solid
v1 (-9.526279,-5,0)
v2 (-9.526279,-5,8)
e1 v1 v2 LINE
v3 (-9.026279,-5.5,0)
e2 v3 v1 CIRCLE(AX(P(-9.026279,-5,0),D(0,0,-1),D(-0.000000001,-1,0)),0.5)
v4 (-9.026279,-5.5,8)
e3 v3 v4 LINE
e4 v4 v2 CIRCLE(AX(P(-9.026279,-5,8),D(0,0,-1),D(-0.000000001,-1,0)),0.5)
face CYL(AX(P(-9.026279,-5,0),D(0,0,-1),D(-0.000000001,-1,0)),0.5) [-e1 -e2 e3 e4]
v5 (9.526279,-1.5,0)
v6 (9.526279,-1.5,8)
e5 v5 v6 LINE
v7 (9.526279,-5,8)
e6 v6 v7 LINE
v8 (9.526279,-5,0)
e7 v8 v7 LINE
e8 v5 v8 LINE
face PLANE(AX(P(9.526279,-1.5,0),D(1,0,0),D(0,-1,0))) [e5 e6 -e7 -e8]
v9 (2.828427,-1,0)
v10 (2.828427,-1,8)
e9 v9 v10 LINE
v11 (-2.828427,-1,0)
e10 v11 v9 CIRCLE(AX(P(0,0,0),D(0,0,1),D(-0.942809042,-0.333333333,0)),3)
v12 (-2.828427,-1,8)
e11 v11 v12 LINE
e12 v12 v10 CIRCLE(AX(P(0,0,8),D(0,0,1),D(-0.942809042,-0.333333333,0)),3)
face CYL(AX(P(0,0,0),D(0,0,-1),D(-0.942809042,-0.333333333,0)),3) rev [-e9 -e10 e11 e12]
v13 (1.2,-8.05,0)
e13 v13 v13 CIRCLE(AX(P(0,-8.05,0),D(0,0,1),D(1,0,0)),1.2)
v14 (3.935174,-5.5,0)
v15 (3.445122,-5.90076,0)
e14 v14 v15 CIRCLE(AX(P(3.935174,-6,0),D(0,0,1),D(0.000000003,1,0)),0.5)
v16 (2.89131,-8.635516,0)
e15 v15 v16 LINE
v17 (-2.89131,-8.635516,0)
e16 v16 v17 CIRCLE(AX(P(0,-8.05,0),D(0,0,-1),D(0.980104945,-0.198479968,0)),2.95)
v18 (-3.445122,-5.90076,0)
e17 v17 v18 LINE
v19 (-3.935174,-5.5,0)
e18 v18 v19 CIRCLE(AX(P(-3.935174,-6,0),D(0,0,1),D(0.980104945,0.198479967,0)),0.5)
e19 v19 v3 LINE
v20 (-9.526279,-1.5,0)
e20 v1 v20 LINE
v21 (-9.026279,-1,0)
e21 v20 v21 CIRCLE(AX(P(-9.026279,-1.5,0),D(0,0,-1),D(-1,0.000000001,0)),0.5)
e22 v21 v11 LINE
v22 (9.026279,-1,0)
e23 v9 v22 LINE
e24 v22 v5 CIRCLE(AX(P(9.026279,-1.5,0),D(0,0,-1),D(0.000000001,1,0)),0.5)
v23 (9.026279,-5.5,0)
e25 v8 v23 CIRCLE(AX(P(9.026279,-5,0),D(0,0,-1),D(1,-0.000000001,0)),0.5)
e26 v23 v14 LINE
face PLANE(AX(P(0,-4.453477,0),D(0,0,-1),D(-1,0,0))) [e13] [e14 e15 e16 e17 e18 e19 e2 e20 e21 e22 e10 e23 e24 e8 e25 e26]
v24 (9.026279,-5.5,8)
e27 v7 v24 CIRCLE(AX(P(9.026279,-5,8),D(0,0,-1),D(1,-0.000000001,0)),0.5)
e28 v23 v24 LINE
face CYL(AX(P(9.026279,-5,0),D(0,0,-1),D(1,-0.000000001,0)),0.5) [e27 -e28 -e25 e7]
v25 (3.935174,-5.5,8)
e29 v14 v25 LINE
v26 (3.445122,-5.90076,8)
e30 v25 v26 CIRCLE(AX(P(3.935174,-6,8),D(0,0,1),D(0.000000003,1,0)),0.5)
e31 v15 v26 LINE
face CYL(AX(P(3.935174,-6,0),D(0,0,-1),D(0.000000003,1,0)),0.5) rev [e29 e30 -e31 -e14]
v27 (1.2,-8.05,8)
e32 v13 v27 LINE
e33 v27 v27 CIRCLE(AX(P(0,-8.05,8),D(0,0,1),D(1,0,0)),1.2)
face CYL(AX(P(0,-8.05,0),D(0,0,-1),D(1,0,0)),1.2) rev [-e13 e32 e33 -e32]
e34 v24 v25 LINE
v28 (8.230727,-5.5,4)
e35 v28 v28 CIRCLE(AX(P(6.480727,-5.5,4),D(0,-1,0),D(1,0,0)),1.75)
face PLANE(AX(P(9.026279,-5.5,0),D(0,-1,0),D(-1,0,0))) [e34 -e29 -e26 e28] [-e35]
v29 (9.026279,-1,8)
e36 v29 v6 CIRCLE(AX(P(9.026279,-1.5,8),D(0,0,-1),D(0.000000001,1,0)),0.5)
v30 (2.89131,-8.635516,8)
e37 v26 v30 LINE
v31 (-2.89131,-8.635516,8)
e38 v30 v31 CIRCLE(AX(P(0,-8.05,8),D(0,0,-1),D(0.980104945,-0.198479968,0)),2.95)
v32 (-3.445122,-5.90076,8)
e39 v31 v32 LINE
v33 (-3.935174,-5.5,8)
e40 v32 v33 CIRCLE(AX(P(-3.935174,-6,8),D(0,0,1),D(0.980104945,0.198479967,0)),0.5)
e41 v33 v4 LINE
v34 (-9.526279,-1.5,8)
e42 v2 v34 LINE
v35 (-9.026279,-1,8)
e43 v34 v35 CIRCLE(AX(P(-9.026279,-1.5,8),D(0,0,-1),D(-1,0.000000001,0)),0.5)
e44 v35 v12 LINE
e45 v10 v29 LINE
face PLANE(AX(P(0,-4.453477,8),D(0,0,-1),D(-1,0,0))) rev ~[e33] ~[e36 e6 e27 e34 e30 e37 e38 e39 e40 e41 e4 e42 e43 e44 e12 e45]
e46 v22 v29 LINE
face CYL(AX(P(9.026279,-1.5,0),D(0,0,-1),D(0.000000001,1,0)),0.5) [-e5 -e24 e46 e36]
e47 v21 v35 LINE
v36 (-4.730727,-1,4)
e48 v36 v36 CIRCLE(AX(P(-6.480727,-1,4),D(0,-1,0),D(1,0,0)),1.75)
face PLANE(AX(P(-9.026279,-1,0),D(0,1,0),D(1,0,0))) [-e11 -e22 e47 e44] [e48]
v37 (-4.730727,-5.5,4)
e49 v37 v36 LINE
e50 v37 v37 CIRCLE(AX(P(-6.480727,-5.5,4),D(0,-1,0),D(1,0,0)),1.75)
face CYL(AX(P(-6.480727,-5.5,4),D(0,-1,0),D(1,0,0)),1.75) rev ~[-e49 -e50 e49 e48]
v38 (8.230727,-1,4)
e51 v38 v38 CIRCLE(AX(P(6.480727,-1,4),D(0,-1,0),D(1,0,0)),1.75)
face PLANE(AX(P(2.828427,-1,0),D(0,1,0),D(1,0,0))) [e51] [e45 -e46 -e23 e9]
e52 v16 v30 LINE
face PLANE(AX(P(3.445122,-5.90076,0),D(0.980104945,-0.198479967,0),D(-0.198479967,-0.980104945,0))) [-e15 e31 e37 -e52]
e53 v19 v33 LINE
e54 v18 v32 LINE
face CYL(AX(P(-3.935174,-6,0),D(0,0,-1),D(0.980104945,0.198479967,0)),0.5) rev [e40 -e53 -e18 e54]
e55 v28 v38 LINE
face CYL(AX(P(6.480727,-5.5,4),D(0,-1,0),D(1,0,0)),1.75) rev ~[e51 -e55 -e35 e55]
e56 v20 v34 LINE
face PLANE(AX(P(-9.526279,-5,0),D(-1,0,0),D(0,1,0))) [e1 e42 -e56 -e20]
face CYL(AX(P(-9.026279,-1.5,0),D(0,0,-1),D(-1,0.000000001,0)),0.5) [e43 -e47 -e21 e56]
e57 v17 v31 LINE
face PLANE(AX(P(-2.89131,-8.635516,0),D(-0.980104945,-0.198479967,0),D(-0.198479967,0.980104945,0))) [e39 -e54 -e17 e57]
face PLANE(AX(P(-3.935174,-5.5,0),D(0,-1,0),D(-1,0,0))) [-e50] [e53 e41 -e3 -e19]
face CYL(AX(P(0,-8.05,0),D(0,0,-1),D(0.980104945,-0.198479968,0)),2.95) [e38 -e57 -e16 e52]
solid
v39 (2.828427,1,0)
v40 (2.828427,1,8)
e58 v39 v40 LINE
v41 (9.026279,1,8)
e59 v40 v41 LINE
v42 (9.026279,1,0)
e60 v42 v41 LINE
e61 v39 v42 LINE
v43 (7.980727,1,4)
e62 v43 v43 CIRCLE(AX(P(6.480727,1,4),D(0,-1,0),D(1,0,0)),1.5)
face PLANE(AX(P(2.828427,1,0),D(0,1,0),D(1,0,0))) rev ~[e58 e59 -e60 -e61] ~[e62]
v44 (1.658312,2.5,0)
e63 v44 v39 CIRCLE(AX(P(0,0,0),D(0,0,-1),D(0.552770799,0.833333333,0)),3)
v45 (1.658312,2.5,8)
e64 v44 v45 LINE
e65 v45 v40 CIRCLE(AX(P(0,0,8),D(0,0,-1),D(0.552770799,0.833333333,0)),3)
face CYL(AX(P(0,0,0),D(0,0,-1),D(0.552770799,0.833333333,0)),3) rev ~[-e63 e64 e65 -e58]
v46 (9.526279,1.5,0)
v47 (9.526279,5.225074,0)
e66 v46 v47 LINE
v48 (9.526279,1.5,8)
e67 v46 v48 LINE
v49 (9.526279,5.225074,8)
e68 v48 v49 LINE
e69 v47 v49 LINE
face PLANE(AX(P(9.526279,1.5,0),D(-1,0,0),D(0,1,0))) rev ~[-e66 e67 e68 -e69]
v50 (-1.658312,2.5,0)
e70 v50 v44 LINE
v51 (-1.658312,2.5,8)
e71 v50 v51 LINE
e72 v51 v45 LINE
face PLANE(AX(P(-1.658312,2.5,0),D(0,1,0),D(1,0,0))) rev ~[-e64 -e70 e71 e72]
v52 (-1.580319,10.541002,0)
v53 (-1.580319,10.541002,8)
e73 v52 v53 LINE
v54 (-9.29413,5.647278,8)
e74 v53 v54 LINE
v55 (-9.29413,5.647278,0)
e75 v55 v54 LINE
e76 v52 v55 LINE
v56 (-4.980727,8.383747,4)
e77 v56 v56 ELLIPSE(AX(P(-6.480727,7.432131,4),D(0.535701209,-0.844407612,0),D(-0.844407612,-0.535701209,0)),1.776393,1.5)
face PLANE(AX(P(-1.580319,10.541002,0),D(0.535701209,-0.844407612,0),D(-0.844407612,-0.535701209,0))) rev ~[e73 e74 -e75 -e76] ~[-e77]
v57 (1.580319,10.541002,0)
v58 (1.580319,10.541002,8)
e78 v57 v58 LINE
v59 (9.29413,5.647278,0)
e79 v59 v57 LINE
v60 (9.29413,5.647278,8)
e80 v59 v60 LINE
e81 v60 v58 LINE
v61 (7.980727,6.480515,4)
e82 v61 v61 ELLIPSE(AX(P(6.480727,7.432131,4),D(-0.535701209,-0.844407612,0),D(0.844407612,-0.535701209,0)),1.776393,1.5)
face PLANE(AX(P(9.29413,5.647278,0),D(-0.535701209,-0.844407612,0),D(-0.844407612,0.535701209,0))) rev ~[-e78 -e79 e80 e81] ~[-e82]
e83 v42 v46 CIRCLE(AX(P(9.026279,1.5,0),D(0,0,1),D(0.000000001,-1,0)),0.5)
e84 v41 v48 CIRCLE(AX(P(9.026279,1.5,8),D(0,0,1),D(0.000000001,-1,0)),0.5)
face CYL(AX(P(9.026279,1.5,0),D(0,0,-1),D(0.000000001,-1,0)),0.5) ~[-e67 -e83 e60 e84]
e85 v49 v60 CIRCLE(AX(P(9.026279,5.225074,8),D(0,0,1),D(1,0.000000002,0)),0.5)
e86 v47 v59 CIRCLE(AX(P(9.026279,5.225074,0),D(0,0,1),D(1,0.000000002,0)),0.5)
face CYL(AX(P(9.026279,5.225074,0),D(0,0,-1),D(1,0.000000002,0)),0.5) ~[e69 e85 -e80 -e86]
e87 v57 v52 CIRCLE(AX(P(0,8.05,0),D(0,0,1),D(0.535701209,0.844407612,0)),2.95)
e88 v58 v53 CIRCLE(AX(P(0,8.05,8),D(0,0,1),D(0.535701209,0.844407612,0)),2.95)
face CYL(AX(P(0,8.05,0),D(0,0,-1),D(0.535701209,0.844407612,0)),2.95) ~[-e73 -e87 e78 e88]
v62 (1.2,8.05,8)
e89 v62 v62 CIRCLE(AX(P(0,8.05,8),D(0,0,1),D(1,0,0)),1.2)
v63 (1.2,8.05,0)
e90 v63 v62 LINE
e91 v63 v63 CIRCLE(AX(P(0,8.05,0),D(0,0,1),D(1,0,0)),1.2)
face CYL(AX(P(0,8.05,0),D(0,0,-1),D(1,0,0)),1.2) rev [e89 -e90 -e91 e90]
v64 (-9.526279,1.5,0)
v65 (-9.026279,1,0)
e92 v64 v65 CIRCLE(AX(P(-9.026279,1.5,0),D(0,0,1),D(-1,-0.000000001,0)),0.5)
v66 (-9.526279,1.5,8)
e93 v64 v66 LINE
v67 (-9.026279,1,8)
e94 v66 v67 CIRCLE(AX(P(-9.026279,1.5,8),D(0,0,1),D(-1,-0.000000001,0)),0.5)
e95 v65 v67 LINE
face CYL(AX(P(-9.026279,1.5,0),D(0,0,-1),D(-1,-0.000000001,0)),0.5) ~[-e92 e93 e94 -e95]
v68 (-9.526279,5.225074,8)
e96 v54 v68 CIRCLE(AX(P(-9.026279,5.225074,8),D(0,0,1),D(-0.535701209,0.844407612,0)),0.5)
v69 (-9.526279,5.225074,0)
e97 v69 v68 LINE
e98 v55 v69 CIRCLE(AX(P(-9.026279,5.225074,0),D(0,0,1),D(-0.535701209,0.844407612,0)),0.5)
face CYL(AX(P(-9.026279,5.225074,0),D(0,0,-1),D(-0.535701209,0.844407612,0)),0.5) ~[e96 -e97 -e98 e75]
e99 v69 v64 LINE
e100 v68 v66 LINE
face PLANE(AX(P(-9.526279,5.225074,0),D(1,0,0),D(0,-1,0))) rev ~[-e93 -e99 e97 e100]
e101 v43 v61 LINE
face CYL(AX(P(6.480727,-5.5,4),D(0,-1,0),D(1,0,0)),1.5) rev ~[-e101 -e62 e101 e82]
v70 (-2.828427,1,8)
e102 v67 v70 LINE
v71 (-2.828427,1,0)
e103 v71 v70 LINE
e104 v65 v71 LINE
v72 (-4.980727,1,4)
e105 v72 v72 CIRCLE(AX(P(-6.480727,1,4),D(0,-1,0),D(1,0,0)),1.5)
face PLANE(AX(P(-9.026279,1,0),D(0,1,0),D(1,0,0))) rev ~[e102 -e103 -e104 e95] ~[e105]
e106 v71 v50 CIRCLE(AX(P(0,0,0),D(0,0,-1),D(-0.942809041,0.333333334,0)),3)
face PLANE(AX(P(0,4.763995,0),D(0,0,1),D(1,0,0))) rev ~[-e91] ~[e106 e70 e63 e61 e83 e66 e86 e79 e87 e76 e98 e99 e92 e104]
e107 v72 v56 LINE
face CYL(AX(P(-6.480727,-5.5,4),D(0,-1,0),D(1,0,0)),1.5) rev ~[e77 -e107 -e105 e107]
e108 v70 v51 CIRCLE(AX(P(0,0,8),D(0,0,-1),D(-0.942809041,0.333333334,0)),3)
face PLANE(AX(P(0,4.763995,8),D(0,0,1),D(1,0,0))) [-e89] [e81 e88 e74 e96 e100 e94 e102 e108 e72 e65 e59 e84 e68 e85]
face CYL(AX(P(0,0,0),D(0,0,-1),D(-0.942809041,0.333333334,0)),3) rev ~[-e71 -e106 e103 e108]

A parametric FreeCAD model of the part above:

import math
import FreeCAD as App
import Part
import Sketcher
Q = App.Units.Quantity

doc = App.newDocument("Part")
body = doc.addObject("PartDesign::Body", "Body")

sketch1 = doc.addObject("Sketcher::SketchObject", "Sketch")
body.addObject(sketch1)
sketch1.AttachmentSupport = (doc.XY_Plane, [""])
sketch1.MapMode = "FlatFace"
sketch1.addGeometry(Part.LineSegment(App.Vector(-1.66, 2.5, 0), App.Vector(1.66, 2.5, 0)), False)
sketch1.addGeometry(Part.ArcOfCircle(Part.Circle(App.Vector(0, 0, 0), App.Vector(0, 0, 1), 3), math.radians(19), math.radians(56)), False)
sketch1.addGeometry(Part.LineSegment(App.Vector(2.83, 1, 0), App.Vector(9.03, 1, 0)), False)
sketch1.addGeometry(Part.ArcOfCircle(Part.Circle(App.Vector(9.03, 1.5, 0), App.Vector(0, 0, 1), 0.5), math.radians(-90), math.radians(0)), False)
sketch1.addGeometry(Part.LineSegment(App.Vector(9.53, 1.5, 0), App.Vector(9.53, 5.23, 0)), False)
sketch1.addGeometry(Part.ArcOfCircle(Part.Circle(App.Vector(9.03, 5.23, 0), App.Vector(0, 0, 1), 0.5), math.radians(0), math.radians(58)), False)
sketch1.addGeometry(Part.LineSegment(App.Vector(9.29, 5.65, 0), App.Vector(1.58, 10.54, 0)), False)
sketch1.addGeometry(Part.ArcOfCircle(Part.Circle(App.Vector(0, 8.05, 0), App.Vector(0, 0, 1), 2.95), math.radians(58), math.radians(122)), False)
sketch1.addGeometry(Part.LineSegment(App.Vector(-1.58, 10.54, 0), App.Vector(-9.29, 5.65, 0)), False)
sketch1.addGeometry(Part.ArcOfCircle(Part.Circle(App.Vector(-9.03, 5.23, 0), App.Vector(0, 0, 1), 0.5), math.radians(122), math.radians(180)), False)
sketch1.addGeometry(Part.LineSegment(App.Vector(-9.53, 5.23, 0), App.Vector(-9.53, 1.5, 0)), False)
sketch1.addGeometry(Part.ArcOfCircle(Part.Circle(App.Vector(-9.03, 1.5, 0), App.Vector(0, 0, 1), 0.5), math.radians(180), math.radians(270)), False)
sketch1.addGeometry(Part.LineSegment(App.Vector(-9.03, 1, 0), App.Vector(-2.83, 1, 0)), False)
sketch1.addGeometry(Part.ArcOfCircle(Part.Circle(App.Vector(0, 0, 0), App.Vector(0, 0, 1), 3), math.radians(124), math.radians(161)), False)
sketch1.addGeometry(Part.Circle(App.Vector(0, 8.05, 0), App.Vector(0, 0, 1), 1.2), False)
sketch1.addConstraint(Sketcher.Constraint("Coincident", 0, 2, 1, 2))
sketch1.addConstraint(Sketcher.Constraint("Coincident", 1, 1, 2, 1))
sketch1.addConstraint(Sketcher.Constraint("Tangent", 2, 2, 3, 1))
sketch1.addConstraint(Sketcher.Constraint("Tangent", 3, 2, 4, 1))
sketch1.addConstraint(Sketcher.Constraint("Tangent", 4, 2, 5, 1))
sketch1.addConstraint(Sketcher.Constraint("Tangent", 5, 2, 6, 1))
sketch1.addConstraint(Sketcher.Constraint("Tangent", 6, 2, 7, 1))
sketch1.addConstraint(Sketcher.Constraint("Tangent", 7, 2, 8, 1))
sketch1.addConstraint(Sketcher.Constraint("Tangent", 8, 2, 9, 1))
sketch1.addConstraint(Sketcher.Constraint("Tangent", 9, 2, 10, 1))
sketch1.addConstraint(Sketcher.Constraint("Tangent", 10, 2, 11, 1))
sketch1.addConstraint(Sketcher.Constraint("Tangent", 11, 2, 12, 1))
sketch1.addConstraint(Sketcher.Constraint("Coincident", 12, 2, 13, 2))
sketch1.addConstraint(Sketcher.Constraint("Coincident", 13, 1, 0, 1))
sketch1.addConstraint(Sketcher.Constraint("Horizontal", 0))
sketch1.addConstraint(Sketcher.Constraint("Horizontal", 2))
sketch1.addConstraint(Sketcher.Constraint("Vertical", 4))
sketch1.addConstraint(Sketcher.Constraint("Vertical", 10))
sketch1.addConstraint(Sketcher.Constraint("Horizontal", 12))
sketch1.addConstraint(Sketcher.Constraint("Coincident", 1, 3, -1, 1))
sketch1.addConstraint(Sketcher.Constraint("Coincident", 13, 3, -1, 1))
sketch1.addConstraint(Sketcher.Constraint("Coincident", 14, 3, 7, 3))
sketch1.addConstraint(Sketcher.Constraint("Equal", 3, 5))
sketch1.addConstraint(Sketcher.Constraint("Equal", 5, 9))
sketch1.addConstraint(Sketcher.Constraint("Equal", 9, 11))
sketch1.addConstraint(Sketcher.Constraint("Equal", 1, 13))
sketch1.addConstraint(Sketcher.Constraint("Symmetric", 5, 3, 9, 3, -2))
sketch1.addConstraint(Sketcher.Constraint("PointOnObject", 7, 3, -2))
sketch1.addConstraint(Sketcher.Constraint("Horizontal", 3, 3, 11, 3))
sketch1.addConstraint(Sketcher.Constraint("Radius", 1, Q("3 mm")))
sketch1.addConstraint(Sketcher.Constraint("Diameter", 14, Q("2.4 mm")))
sketch1.addConstraint(Sketcher.Constraint("Radius", 3, Q("0.5 mm")))
sketch1.addConstraint(Sketcher.Constraint("Radius", 7, Q("2.95 mm")))
sketch1.addConstraint(Sketcher.Constraint("DistanceY", -1, 1, 1, 1, Q("1 mm")))
sketch1.addConstraint(Sketcher.Constraint("DistanceY", 3, 3, 0, 2, Q("1 mm")))
sketch1.addConstraint(Sketcher.Constraint("DistanceY", -1, 1, 7, 3, Q("8.05 mm")))
sketch1.addConstraint(Sketcher.Constraint("DistanceX", 2, 1, 2, 2, Q("6.197852 mm")))
sketch1.addConstraint(Sketcher.Constraint("DistanceY", 4, 1, 4, 2, Q("3.725074 mm")))
pad1 = doc.addObject("PartDesign::Pad", "Pad")
body.addObject(pad1)
pad1.Profile = sketch1
pad1.Length = 8
body2 = doc.addObject("PartDesign::Body", "Body001")

sketch2 = doc.addObject("Sketcher::SketchObject", "Sketch001")
body2.addObject(sketch2)
sketch2.AttachmentSupport = (doc.getObject("XY_Plane001"), [""])
sketch2.MapMode = "FlatFace"
sketch2.addGeometry(Part.LineSegment(App.Vector(-2.83, -1, 0), App.Vector(-9.03, -1, 0)), False)
sketch2.addGeometry(Part.ArcOfCircle(Part.Circle(App.Vector(-9.03, -1.5, 0), App.Vector(0, 0, 1), 0.5), math.radians(90), math.radians(180)), False)
sketch2.addGeometry(Part.LineSegment(App.Vector(-9.53, -1.5, 0), App.Vector(-9.53, -5, 0)), False)
sketch2.addGeometry(Part.ArcOfCircle(Part.Circle(App.Vector(-9.03, -5, 0), App.Vector(0, 0, 1), 0.5), math.radians(180), math.radians(270)), False)
sketch2.addGeometry(Part.LineSegment(App.Vector(-9.03, -5.5, 0), App.Vector(-3.94, -5.5, 0)), False)
sketch2.addGeometry(Part.ArcOfCircle(Part.Circle(App.Vector(-3.94, -6, 0), App.Vector(0, 0, 1), 0.5), math.radians(11), math.radians(90)), False)
sketch2.addGeometry(Part.LineSegment(App.Vector(-3.45, -5.9, 0), App.Vector(-2.89, -8.64, 0)), False)
sketch2.addGeometry(Part.ArcOfCircle(Part.Circle(App.Vector(0, -8.05, 0), App.Vector(0, 0, 1), 2.95), math.radians(-169), math.radians(-11)), False)
sketch2.addGeometry(Part.LineSegment(App.Vector(2.89, -8.64, 0), App.Vector(3.45, -5.9, 0)), False)
sketch2.addGeometry(Part.ArcOfCircle(Part.Circle(App.Vector(3.94, -6, 0), App.Vector(0, 0, 1), 0.5), math.radians(90), math.radians(169)), False)
sketch2.addGeometry(Part.LineSegment(App.Vector(3.94, -5.5, 0), App.Vector(9.03, -5.5, 0)), False)
sketch2.addGeometry(Part.ArcOfCircle(Part.Circle(App.Vector(9.03, -5, 0), App.Vector(0, 0, 1), 0.5), math.radians(-90), math.radians(0)), False)
sketch2.addGeometry(Part.LineSegment(App.Vector(9.53, -5, 0), App.Vector(9.53, -1.5, 0)), False)
sketch2.addGeometry(Part.ArcOfCircle(Part.Circle(App.Vector(9.03, -1.5, 0), App.Vector(0, 0, 1), 0.5), math.radians(0), math.radians(90)), False)
sketch2.addGeometry(Part.LineSegment(App.Vector(9.03, -1, 0), App.Vector(2.83, -1, 0)), False)
sketch2.addGeometry(Part.ArcOfCircle(Part.Circle(App.Vector(0, 0, 0), App.Vector(0, 0, 1), 3), math.radians(-161), math.radians(-19)), False)
sketch2.addGeometry(Part.Circle(App.Vector(0, -8.05, 0), App.Vector(0, 0, 1), 1.2), False)
sketch2.addConstraint(Sketcher.Constraint("Tangent", 0, 2, 1, 1))
sketch2.addConstraint(Sketcher.Constraint("Tangent", 1, 2, 2, 1))
sketch2.addConstraint(Sketcher.Constraint("Tangent", 2, 2, 3, 1))
sketch2.addConstraint(Sketcher.Constraint("Tangent", 3, 2, 4, 1))
sketch2.addConstraint(Sketcher.Constraint("Tangent", 4, 2, 5, 2))
sketch2.addConstraint(Sketcher.Constraint("Tangent", 5, 1, 6, 1))
sketch2.addConstraint(Sketcher.Constraint("Tangent", 6, 2, 7, 1))
sketch2.addConstraint(Sketcher.Constraint("Tangent", 7, 2, 8, 1))
sketch2.addConstraint(Sketcher.Constraint("Tangent", 8, 2, 9, 2))
sketch2.addConstraint(Sketcher.Constraint("Tangent", 9, 1, 10, 1))
sketch2.addConstraint(Sketcher.Constraint("Tangent", 10, 2, 11, 1))
sketch2.addConstraint(Sketcher.Constraint("Tangent", 11, 2, 12, 1))
sketch2.addConstraint(Sketcher.Constraint("Tangent", 12, 2, 13, 1))
sketch2.addConstraint(Sketcher.Constraint("Tangent", 13, 2, 14, 1))
sketch2.addConstraint(Sketcher.Constraint("Coincident", 14, 2, 15, 2))
sketch2.addConstraint(Sketcher.Constraint("Coincident", 15, 1, 0, 1))
sketch2.addConstraint(Sketcher.Constraint("Horizontal", 0))
sketch2.addConstraint(Sketcher.Constraint("Vertical", 2))
sketch2.addConstraint(Sketcher.Constraint("Horizontal", 4))
sketch2.addConstraint(Sketcher.Constraint("Horizontal", 10))
sketch2.addConstraint(Sketcher.Constraint("Vertical", 12))
sketch2.addConstraint(Sketcher.Constraint("Horizontal", 14))
sketch2.addConstraint(Sketcher.Constraint("Coincident", 15, 3, -1, 1))
sketch2.addConstraint(Sketcher.Constraint("Coincident", 16, 3, 7, 3))
sketch2.addConstraint(Sketcher.Constraint("Equal", 1, 3))
sketch2.addConstraint(Sketcher.Constraint("Equal", 3, 5))
sketch2.addConstraint(Sketcher.Constraint("Equal", 5, 9))
sketch2.addConstraint(Sketcher.Constraint("Equal", 9, 11))
sketch2.addConstraint(Sketcher.Constraint("Equal", 11, 13))
sketch2.addConstraint(Sketcher.Constraint("Symmetric", 5, 3, 9, 3, -2))
sketch2.addConstraint(Sketcher.Constraint("Symmetric", 1, 3, 13, 3, -2))
sketch2.addConstraint(Sketcher.Constraint("PointOnObject", 7, 3, -2))
sketch2.addConstraint(Sketcher.Constraint("Radius", 15, Q("3 mm")))
sketch2.addConstraint(Sketcher.Constraint("Diameter", 16, Q("2.4 mm")))
sketch2.addConstraint(Sketcher.Constraint("Radius", 1, Q("0.5 mm")))
sketch2.addConstraint(Sketcher.Constraint("Radius", 7, Q("2.95 mm")))
sketch2.addConstraint(Sketcher.Constraint("DistanceY", 2, 2, 2, 1, Q("3.5 mm")))
sketch2.addConstraint(Sketcher.Constraint("DistanceY", 3, 3, -1, 1, Q("5 mm")))
sketch2.addConstraint(Sketcher.Constraint("DistanceY", 7, 3, -1, 1, Q("8.05 mm")))
sketch2.addConstraint(Sketcher.Constraint("Distance", 6, Q("2.790268 mm")))
sketch2.addConstraint(Sketcher.Constraint("DistanceX", 0, 2, 0, 1, Q("6.197852 mm")))
pad2 = doc.addObject("PartDesign::Pad", "Pad001")
body2.addObject(pad2)
pad2.Profile = sketch2
pad2.Length = 8
body3 = doc.addObject("PartDesign::Body", "Body002")
body3.AllowCompound = True

sketch3 = doc.addObject("Sketcher::SketchObject", "Sketch002")
body3.addObject(sketch3)
sketch3.AttachmentSupport = (doc.getObject("XZ_Plane002"), [""])
sketch3.MapMode = "FlatFace"
sketch3.AttachmentOffset = App.Placement(App.Vector(0, 0, 5.5), App.Rotation())
sketch3.addGeometry(Part.Circle(App.Vector(6.5, 4, 0), App.Vector(0, 0, 1), 1.5), False)
sketch3.addGeometry(Part.Circle(App.Vector(-6.5, 4, 0), App.Vector(0, 0, 1), 1.5), False)
sketch3.addConstraint(Sketcher.Constraint("Equal", 0, 1))
sketch3.addConstraint(Sketcher.Constraint("Symmetric", 0, 3, 1, 3, -2))
sketch3.addConstraint(Sketcher.Constraint("Diameter", 0, Q("3 mm")))
sketch3.addConstraint(Sketcher.Constraint("DistanceY", -1, 1, 0, 3, Q("4 mm")))
sketch3.addConstraint(Sketcher.Constraint("DistanceX", -1, 1, 0, 3, Q("6.480727 mm")))
pad3 = doc.addObject("PartDesign::Pad", "Pad002")
body3.addObject(pad3)
pad3.Profile = sketch3
pad3.Length = 17.5
pad3.Reversed = True
doc.recompute()

body4 = doc.addObject("PartDesign::Body", "Body003")
body4.BaseFeature = body3
boolean = doc.addObject("PartDesign::Boolean", "Boolean")
body.addObject(boolean)
boolean.Type = "Cut"
boolean.addObjects([body4])
doc.recompute()

boolean2 = doc.addObject("PartDesign::Boolean", "Boolean001")
body2.addObject(boolean2)
boolean2.Type = "Cut"
boolean2.addObjects([body3])

sketch4 = doc.addObject("Sketcher::SketchObject", "Sketch003")
body2.addObject(sketch4)
sketch4.AttachmentSupport = (doc.getObject("XZ_Plane001"), [""])
sketch4.MapMode = "FlatFace"
sketch4.AttachmentOffset = App.Placement(App.Vector(0, 0, 5.5), App.Rotation())
sketch4.addGeometry(Part.Circle(App.Vector(-6.5, 4, 0), App.Vector(0, 0, 1), 1.8), False)
sketch4.addGeometry(Part.Circle(App.Vector(6.5, 4, 0), App.Vector(0, 0, 1), 1.8), False)
sketch4.addConstraint(Sketcher.Constraint("Equal", 0, 1))
sketch4.addConstraint(Sketcher.Constraint("Symmetric", 0, 3, 1, 3, -2))
sketch4.addConstraint(Sketcher.Constraint("Diameter", 0, Q("3.5 mm")))
sketch4.addConstraint(Sketcher.Constraint("DistanceY", -1, 1, 0, 3, Q("4 mm")))
sketch4.addConstraint(Sketcher.Constraint("DistanceX", 0, 3, -1, 1, Q("6.480727 mm")))
pocket1 = doc.addObject("PartDesign::Pocket", "Pocket")
body2.addObject(pocket1)
pocket1.Profile = sketch4
pocket1.Length = 4.5

doc.recompute()
